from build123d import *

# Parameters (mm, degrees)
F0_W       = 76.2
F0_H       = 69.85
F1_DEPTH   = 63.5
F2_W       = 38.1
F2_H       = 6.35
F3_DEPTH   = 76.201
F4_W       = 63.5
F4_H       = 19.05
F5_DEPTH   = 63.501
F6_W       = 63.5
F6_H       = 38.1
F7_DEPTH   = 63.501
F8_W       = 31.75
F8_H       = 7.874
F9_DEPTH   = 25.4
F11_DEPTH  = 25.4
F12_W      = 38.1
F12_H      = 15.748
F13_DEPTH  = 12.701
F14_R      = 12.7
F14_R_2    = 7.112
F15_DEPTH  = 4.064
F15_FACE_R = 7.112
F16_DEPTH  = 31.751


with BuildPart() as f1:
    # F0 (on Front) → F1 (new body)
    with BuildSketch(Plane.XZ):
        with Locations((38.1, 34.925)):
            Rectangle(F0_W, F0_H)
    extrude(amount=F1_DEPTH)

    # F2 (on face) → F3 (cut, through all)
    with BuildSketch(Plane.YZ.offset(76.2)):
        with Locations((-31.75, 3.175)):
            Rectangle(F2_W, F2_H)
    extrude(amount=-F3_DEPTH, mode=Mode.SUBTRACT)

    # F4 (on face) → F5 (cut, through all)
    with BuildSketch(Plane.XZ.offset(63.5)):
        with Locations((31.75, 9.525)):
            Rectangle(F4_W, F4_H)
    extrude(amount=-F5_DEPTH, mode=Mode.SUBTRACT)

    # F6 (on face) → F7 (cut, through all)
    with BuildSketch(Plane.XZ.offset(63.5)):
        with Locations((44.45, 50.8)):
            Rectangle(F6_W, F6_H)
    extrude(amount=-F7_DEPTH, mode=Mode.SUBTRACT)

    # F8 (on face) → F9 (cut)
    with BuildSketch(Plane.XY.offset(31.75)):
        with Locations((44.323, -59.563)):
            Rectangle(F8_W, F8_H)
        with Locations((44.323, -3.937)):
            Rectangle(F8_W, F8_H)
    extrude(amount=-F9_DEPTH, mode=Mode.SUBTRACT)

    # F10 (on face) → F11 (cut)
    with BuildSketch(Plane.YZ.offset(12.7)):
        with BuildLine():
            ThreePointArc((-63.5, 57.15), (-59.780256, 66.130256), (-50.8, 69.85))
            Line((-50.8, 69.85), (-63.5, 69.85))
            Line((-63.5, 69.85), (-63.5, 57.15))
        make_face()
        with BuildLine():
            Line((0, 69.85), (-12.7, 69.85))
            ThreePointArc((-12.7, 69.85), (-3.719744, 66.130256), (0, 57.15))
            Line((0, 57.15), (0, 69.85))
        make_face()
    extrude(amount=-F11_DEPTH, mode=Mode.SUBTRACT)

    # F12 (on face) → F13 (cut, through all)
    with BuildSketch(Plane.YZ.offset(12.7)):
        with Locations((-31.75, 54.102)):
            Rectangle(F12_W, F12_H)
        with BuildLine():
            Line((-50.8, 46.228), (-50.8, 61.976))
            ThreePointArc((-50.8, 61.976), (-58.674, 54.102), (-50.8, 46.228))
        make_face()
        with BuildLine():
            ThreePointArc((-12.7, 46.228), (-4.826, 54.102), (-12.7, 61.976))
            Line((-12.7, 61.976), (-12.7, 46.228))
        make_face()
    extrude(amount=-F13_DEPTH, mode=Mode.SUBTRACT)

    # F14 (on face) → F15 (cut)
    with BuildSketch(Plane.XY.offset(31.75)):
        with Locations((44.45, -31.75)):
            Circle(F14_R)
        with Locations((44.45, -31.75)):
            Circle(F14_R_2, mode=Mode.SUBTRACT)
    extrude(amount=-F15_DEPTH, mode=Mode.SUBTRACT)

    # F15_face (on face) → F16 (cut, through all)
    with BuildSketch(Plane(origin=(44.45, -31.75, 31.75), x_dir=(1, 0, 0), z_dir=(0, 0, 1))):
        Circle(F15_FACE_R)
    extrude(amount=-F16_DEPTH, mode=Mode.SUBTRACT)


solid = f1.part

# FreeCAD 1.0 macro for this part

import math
import FreeCAD as App
import Part
import Sketcher
from FreeCAD import Vector
Q = App.Units.Quantity

doc = App.newDocument("Part")
body = doc.addObject("PartDesign::Body", "Body")

# Sketch on XZ plane
sketch1 = body.newObject("Sketcher::SketchObject", "Sketch")
sketch1.AttachmentSupport = (doc.getObject("XZ_Plane"), [""])
sketch1.MapMode = "FlatFace"
sketch1.addGeometry(Part.LineSegment(Vector(0, 70, 0), Vector(0, 0, 0)), False)
sketch1.addGeometry(Part.LineSegment(Vector(0, 0, 0), Vector(76, 0, 0)), False)
sketch1.addGeometry(Part.LineSegment(Vector(76, 0, 0), Vector(76, 70, 0)), False)
sketch1.addGeometry(Part.LineSegment(Vector(76, 70, 0), Vector(0, 70, 0)), False)
sketch1.addConstraint(Sketcher.Constraint("Coincident", 0, 2, 1, 1))
sketch1.addConstraint(Sketcher.Constraint("Coincident", 1, 2, 2, 1))
sketch1.addConstraint(Sketcher.Constraint("Coincident", 2, 2, 3, 1))
sketch1.addConstraint(Sketcher.Constraint("Coincident", 3, 2, 0, 1))
sketch1.addConstraint(Sketcher.Constraint("Vertical", 0))
sketch1.addConstraint(Sketcher.Constraint("Horizontal", 1))
sketch1.addConstraint(Sketcher.Constraint("Vertical", 2))
sketch1.addConstraint(Sketcher.Constraint("Horizontal", 3))
sketch1.addConstraint(Sketcher.Constraint("Coincident", 0, 2, -1, 1))
sketch1.addConstraint(Sketcher.Constraint("DistanceX", 1, 1, 1, 2, Q("3 in")))
sketch1.addConstraint(Sketcher.Constraint("DistanceY", 0, 2, 0, 1, Q("2.75 in")))
pad1 = body.newObject("PartDesign::Pad", "Pad")
pad1.Profile = sketch1
pad1.Length = Q("2.5 in")

# Sketch on YZ plane
sketch2 = body.newObject("Sketcher::SketchObject", "Sketch001")
sketch2.AttachmentSupport = (doc.getObject("YZ_Plane"), [""])
sketch2.MapMode = "FlatFace"
sketch2.AttachmentOffset = App.Placement(Vector(0, 0, 3 * 25.4), App.Rotation())
sketch2.addGeometry(Part.LineSegment(Vector(-51, 6, 0), Vector(-51, 0, 0)), False)
sketch2.addGeometry(Part.LineSegment(Vector(-51, 0, 0), Vector(-13, 0, 0)), False)
sketch2.addGeometry(Part.LineSegment(Vector(-13, 0, 0), Vector(-13, 6, 0)), False)
sketch2.addGeometry(Part.LineSegment(Vector(-13, 6, 0), Vector(-51, 6, 0)), False)
sketch2.addConstraint(Sketcher.Constraint("Coincident", 0, 2, 1, 1))
sketch2.addConstraint(Sketcher.Constraint("Coincident", 1, 2, 2, 1))
sketch2.addConstraint(Sketcher.Constraint("Coincident", 2, 2, 3, 1))
sketch2.addConstraint(Sketcher.Constraint("Coincident", 3, 2, 0, 1))
sketch2.addConstraint(Sketcher.Constraint("Vertical", 0))
sketch2.addConstraint(Sketcher.Constraint("Horizontal", 1))
sketch2.addConstraint(Sketcher.Constraint("Vertical", 2))
sketch2.addConstraint(Sketcher.Constraint("Horizontal", 3))
sketch2.addConstraint(Sketcher.Constraint("PointOnObject", 0, 2, -1))
sketch2.addConstraint(Sketcher.Constraint("DistanceX", 1, 1, 1, 2, Q("1.5 in")))
sketch2.addConstraint(Sketcher.Constraint("DistanceX", 0, 2, -1, 1, Q("2 in")))
sketch2.addConstraint(Sketcher.Constraint("DistanceY", 0, 2, 0, 1, Q("0.25 in")))
pocket1 = body.newObject("PartDesign::Pocket", "Pocket")
pocket1.Profile = sketch2
pocket1.Type = "ThroughAll"

# Sketch on XZ plane
sketch3 = body.newObject("Sketcher::SketchObject", "Sketch002")
sketch3.AttachmentSupport = (doc.getObject("XZ_Plane"), [""])
sketch3.MapMode = "FlatFace"
sketch3.AttachmentOffset = App.Placement(Vector(0, 0, 2.5 * 25.4), App.Rotation())
sketch3.addGeometry(Part.LineSegment(Vector(0, 19, 0), Vector(0, 0, 0)), False)
sketch3.addGeometry(Part.LineSegment(Vector(0, 0, 0), Vector(64, 0, 0)), False)
sketch3.addGeometry(Part.LineSegment(Vector(64, 0, 0), Vector(64, 19, 0)), False)
sketch3.addGeometry(Part.LineSegment(Vector(64, 19, 0), Vector(0, 19, 0)), False)
sketch3.addConstraint(Sketcher.Constraint("Coincident", 0, 2, 1, 1))
sketch3.addConstraint(Sketcher.Constraint("Coincident", 1, 2, 2, 1))
sketch3.addConstraint(Sketcher.Constraint("Coincident", 2, 2, 3, 1))
sketch3.addConstraint(Sketcher.Constraint("Coincident", 3, 2, 0, 1))
sketch3.addConstraint(Sketcher.Constraint("Vertical", 0))
sketch3.addConstraint(Sketcher.Constraint("Horizontal", 1))
sketch3.addConstraint(Sketcher.Constraint("Vertical", 2))
sketch3.addConstraint(Sketcher.Constraint("Horizontal", 3))
sketch3.addConstraint(Sketcher.Constraint("Coincident", 0, 2, -1, 1))
sketch3.addConstraint(Sketcher.Constraint("DistanceX", 1, 1, 1, 2, Q("2.5 in")))
sketch3.addConstraint(Sketcher.Constraint("DistanceY", 0, 2, 0, 1, Q("0.75 in")))
pocket2 = body.newObject("PartDesign::Pocket", "Pocket001")
pocket2.Profile = sketch3
pocket2.Type = "ThroughAll"

# Sketch on XZ plane
sketch4 = body.newObject("Sketcher::SketchObject", "Sketch003")
sketch4.AttachmentSupport = (doc.getObject("XZ_Plane"), [""])
sketch4.MapMode = "FlatFace"
sketch4.AttachmentOffset = App.Placement(Vector(0, 0, 2.5 * 25.4), App.Rotation())
sketch4.addGeometry(Part.LineSegment(Vector(13, 70, 0), Vector(13, 32, 0)), False)
sketch4.addGeometry(Part.LineSegment(Vector(13, 32, 0), Vector(76, 32, 0)), False)
sketch4.addGeometry(Part.LineSegment(Vector(76, 32, 0), Vector(76, 70, 0)), False)
sketch4.addGeometry(Part.LineSegment(Vector(76, 70, 0), Vector(13, 70, 0)), False)
sketch4.addConstraint(Sketcher.Constraint("Coincident", 0, 2, 1, 1))
sketch4.addConstraint(Sketcher.Constraint("Coincident", 1, 2, 2, 1))
sketch4.addConstraint(Sketcher.Constraint("Coincident", 2, 2, 3, 1))
sketch4.addConstraint(Sketcher.Constraint("Coincident", 3, 2, 0, 1))
sketch4.addConstraint(Sketcher.Constraint("Vertical", 0))
sketch4.addConstraint(Sketcher.Constraint("Horizontal", 1))
sketch4.addConstraint(Sketcher.Constraint("Vertical", 2))
sketch4.addConstraint(Sketcher.Constraint("Horizontal", 3))
sketch4.addConstraint(Sketcher.Constraint("DistanceX", 1, 1, 1, 2, Q("2.5 in")))
sketch4.addConstraint(Sketcher.Constraint("DistanceY", 0, 2, 0, 1, Q("1.5 in")))
sketch4.addConstraint(Sketcher.Constraint("DistanceX", -1, 1, 1, 2, Q("3 in")))
sketch4.addConstraint(Sketcher.Constraint("DistanceY", -1, 1, 0, 2, Q("1.25 in")))
pocket3 = body.newObject("PartDesign::Pocket", "Pocket002")
pocket3.Profile = sketch4
pocket3.Type = "ThroughAll"

# Sketch on XY plane
sketch5 = body.newObject("Sketcher::SketchObject", "Sketch004")
sketch5.AttachmentSupport = (doc.getObject("XY_Plane"), [""])
sketch5.MapMode = "FlatFace"
sketch5.AttachmentOffset = App.Placement(Vector(0, 0, 1.25 * 25.4), App.Rotation())
sketch5.addGeometry(Part.LineSegment(Vector(28, -56, 0), Vector(28, -64, 0)), False)
sketch5.addGeometry(Part.LineSegment(Vector(28, -64, 0), Vector(60, -64, 0)), False)
sketch5.addGeometry(Part.LineSegment(Vector(60, -64, 0), Vector(60, -56, 0)), False)
sketch5.addGeometry(Part.LineSegment(Vector(60, -56, 0), Vector(28, -56, 0)), False)
sketch5.addGeometry(Part.LineSegment(Vector(28, 0, 0), Vector(28, -8, 0)), False)
sketch5.addGeometry(Part.LineSegment(Vector(28, -8, 0), Vector(60, -8, 0)), False)
sketch5.addGeometry(Part.LineSegment(Vector(60, -8, 0), Vector(60, 0, 0)), False)
sketch5.addGeometry(Part.LineSegment(Vector(60, 0, 0), Vector(28, 0, 0)), False)
sketch5.addConstraint(Sketcher.Constraint("Coincident", 0, 2, 1, 1))
sketch5.addConstraint(Sketcher.Constraint("Coincident", 1, 2, 2, 1))
sketch5.addConstraint(Sketcher.Constraint("Coincident", 2, 2, 3, 1))
sketch5.addConstraint(Sketcher.Constraint("Coincident", 3, 2, 0, 1))
sketch5.addConstraint(Sketcher.Constraint("Coincident", 4, 2, 5, 1))
sketch5.addConstraint(Sketcher.Constraint("Coincident", 5, 2, 6, 1))
sketch5.addConstraint(Sketcher.Constraint("Coincident", 6, 2, 7, 1))
sketch5.addConstraint(Sketcher.Constraint("Coincident", 7, 2, 4, 1))
sketch5.addConstraint(Sketcher.Constraint("Vertical", 0))
sketch5.addConstraint(Sketcher.Constraint("Horizontal", 1))
sketch5.addConstraint(Sketcher.Constraint("Vertical", 2))
sketch5.addConstraint(Sketcher.Constraint("Horizontal", 3))
sketch5.addConstraint(Sketcher.Constraint("Vertical", 4))
sketch5.addConstraint(Sketcher.Constraint("Horizontal", 5))
sketch5.addConstraint(Sketcher.Constraint("Vertical", 6))
sketch5.addConstraint(Sketcher.Constraint("Horizontal", 7))
sketch5.addConstraint(Sketcher.Constraint("PointOnObject", 6, 2, -1))
sketch5.addConstraint(Sketcher.Constraint("Vertical", 3, 2, 4, 2))
sketch5.addConstraint(Sketcher.Constraint("Vertical", 2, 2, 5, 2))
sketch5.addConstraint(Sketcher.Constraint("Equal", 2, 4))
sketch5.addConstraint(Sketcher.Constraint("DistanceX", 1, 1, 1, 2, Q("1.25 in")))
sketch5.addConstraint(Sketcher.Constraint("DistanceY", 0, 2, 0, 1, Q("0.31 in")))
sketch5.addConstraint(Sketcher.Constraint("DistanceY", 0, 2, -1, 1, Q("2.5 in")))
sketch5.addConstraint(Sketcher.Constraint("DistanceX", -1, 1, 0, 2, Q("1.12 in")))
pocket4 = body.newObject("PartDesign::Pocket", "Pocket003")
pocket4.Profile = sketch5
pocket4.Length = Q("1 in")

# Sketch on YZ plane
sketch6 = body.newObject("Sketcher::SketchObject", "Sketch005")
sketch6.AttachmentSupport = (doc.getObject("YZ_Plane"), [""])
sketch6.MapMode = "FlatFace"
sketch6.AttachmentOffset = App.Placement(Vector(0, 0, 0.5 * 25.4), App.Rotation())
sketch6.addGeometry(Part.ArcOfCircle(Part.Circle(Vector(-51, 57, 0), Vector(0, 0, 1), 13), math.radians(90), math.radians(180)), False)
sketch6.addGeometry(Part.LineSegment(Vector(-51, 70, 0), Vector(-64, 70, 0)), False)
sketch6.addGeometry(Part.LineSegment(Vector(-64, 70, 0), Vector(-64, 57, 0)), False)
sketch6.addGeometry(Part.LineSegment(Vector(0, 70, 0), Vector(-13, 70, 0)), False)
sketch6.addGeometry(Part.ArcOfCircle(Part.Circle(Vector(-13, 57, 0), Vector(0, 0, 1), 13), math.radians(0), math.radians(90)), False)
sketch6.addGeometry(Part.LineSegment(Vector(0, 57, 0), Vector(0, 70, 0)), False)
sketch6.addConstraint(Sketcher.Constraint("Tangent", 0, 1, 1, 1))
sketch6.addConstraint(Sketcher.Constraint("Coincident", 1, 2, 2, 1))
sketch6.addConstraint(Sketcher.Constraint("Tangent", 2, 2, 0, 2))
sketch6.addConstraint(Sketcher.Constraint("Tangent", 3, 2, 4, 2))
sketch6.addConstraint(Sketcher.Constraint("Tangent", 4, 1, 5, 1))
sketch6.addConstraint(Sketcher.Constraint("Coincident", 5, 2, 3, 1))
sketch6.addConstraint(Sketcher.Constraint("Horizontal", 1))
sketch6.addConstraint(Sketcher.Constraint("Vertical", 2))
sketch6.addConstraint(Sketcher.Constraint("Horizontal", 3))
sketch6.addConstraint(Sketcher.Constraint("Vertical", 5))
sketch6.addConstraint(Sketcher.Constraint("Equal", 0, 4))
sketch6.addConstraint(Sketcher.Constraint("PointOnObject", 4, 1, -2))
sketch6.addConstraint(Sketcher.Constraint("Horizontal", 0, 3, 4, 3))
sketch6.addConstraint(Sketcher.Constraint("Radius", 0, Q("0.5 in")))
sketch6.addConstraint(Sketcher.Constraint("DistanceX", 0, 3, -1, 1, Q("2 in")))
sketch6.addConstraint(Sketcher.Constraint("DistanceY", -1, 1, 0, 3, Q("2.25 in")))
pocket5 = body.newObject("PartDesign::Pocket", "Pocket004")
pocket5.Profile = sketch6
pocket5.Length = Q("1 in")

# Sketch on YZ plane
sketch7 = body.newObject("Sketcher::SketchObject", "Sketch006")
sketch7.AttachmentSupport = (doc.getObject("YZ_Plane"), [""])
sketch7.MapMode = "FlatFace"
sketch7.AttachmentOffset = App.Placement(Vector(0, 0, 0.5 * 25.4), App.Rotation())
sketch7.addGeometry(Part.LineSegment(Vector(-51, 46, 0), Vector(-13, 46, 0)), False)
sketch7.addGeometry(Part.ArcOfCircle(Part.Circle(Vector(-13, 54, 0), Vector(0, 0, 1), 8), math.radians(-90), math.radians(90)), False)
sketch7.addGeometry(Part.LineSegment(Vector(-13, 62, 0), Vector(-51, 62, 0)), False)
sketch7.addGeometry(Part.ArcOfCircle(Part.Circle(Vector(-51, 54, 0), Vector(0, 0, 1), 8), math.radians(90), math.radians(270)), False)
sketch7.addConstraint(Sketcher.Constraint("Tangent", 0, 2, 1, 1))
sketch7.addConstraint(Sketcher.Constraint("Tangent", 1, 2, 2, 1))
sketch7.addConstraint(Sketcher.Constraint("Tangent", 2, 2, 3, 1))
sketch7.addConstraint(Sketcher.Constraint("Tangent", 3, 2, 0, 1))
sketch7.addConstraint(Sketcher.Constraint("Horizontal", 0))
sketch7.addConstraint(Sketcher.Constraint("Horizontal", 2))
sketch7.addConstraint(Sketcher.Constraint("Radius", 1, Q("0.31 in")))
sketch7.addConstraint(Sketcher.Constraint("DistanceX", 0, 1, 0, 2, Q("1.5 in")))
sketch7.addConstraint(Sketcher.Constraint("DistanceX", 3, 3, -1, 1, Q("2 in")))
sketch7.addConstraint(Sketcher.Constraint("DistanceY", -1, 1, 1, 3, Q("2.13 in")))
pocket6 = body.newObject("PartDesign::Pocket", "Pocket005")
pocket6.Profile = sketch7
pocket6.Type = "ThroughAll"

# Sketch on XY plane
sketch8 = body.newObject("Sketcher::SketchObject", "Sketch007")
sketch8.AttachmentSupport = (doc.getObject("XY_Plane"), [""])
sketch8.MapMode = "FlatFace"
sketch8.AttachmentOffset = App.Placement(Vector(0, 0, 1.25 * 25.4), App.Rotation())
sketch8.addGeometry(Part.Circle(Vector(44, -32, 0), Vector(0, 0, 1), 13), False)
sketch8.addGeometry(Part.Circle(Vector(44, -32, 0), Vector(0, 0, 1), 7), False)
sketch8.addConstraint(Sketcher.Constraint("Coincident", 1, 3, 0, 3))
sketch8.addConstraint(Sketcher.Constraint("Diameter", 0, Q("1 in")))
sketch8.addConstraint(Sketcher.Constraint("Diameter", 1, Q("0.56 in")))
sketch8.addConstraint(Sketcher.Constraint("DistanceX", -1, 1, 0, 3, Q("1.75 in")))
sketch8.addConstraint(Sketcher.Constraint("DistanceY", 0, 3, -1, 1, Q("1.25 in")))
pocket7 = body.newObject("PartDesign::Pocket", "Pocket006")
pocket7.Profile = sketch8
pocket7.Length = Q("0.16 in")

# Sketch on XY plane
sketch9 = body.newObject("Sketcher::SketchObject", "Sketch008")
sketch9.AttachmentSupport = (doc.getObject("XY_Plane"), [""])
sketch9.MapMode = "FlatFace"
sketch9.AttachmentOffset = App.Placement(Vector(0, 0, 1.25 * 25.4), App.Rotation())
sketch9.addGeometry(Part.Circle(Vector(44, -32, 0), Vector(0, 0, 1), 7), False)
sketch9.addConstraint(Sketcher.Constraint("Diameter", 0, Q("0.56 in")))
sketch9.addConstraint(Sketcher.Constraint("DistanceX", -1, 1, 0, 3, Q("1.75 in")))
sketch9.addConstraint(Sketcher.Constraint("DistanceY", 0, 3, -1, 1, Q("1.25 in")))
pocket8 = body.newObject("PartDesign::Pocket", "Pocket007")
pocket8.Profile = sketch9
pocket8.Type = "ThroughAll"

doc.recompute()
